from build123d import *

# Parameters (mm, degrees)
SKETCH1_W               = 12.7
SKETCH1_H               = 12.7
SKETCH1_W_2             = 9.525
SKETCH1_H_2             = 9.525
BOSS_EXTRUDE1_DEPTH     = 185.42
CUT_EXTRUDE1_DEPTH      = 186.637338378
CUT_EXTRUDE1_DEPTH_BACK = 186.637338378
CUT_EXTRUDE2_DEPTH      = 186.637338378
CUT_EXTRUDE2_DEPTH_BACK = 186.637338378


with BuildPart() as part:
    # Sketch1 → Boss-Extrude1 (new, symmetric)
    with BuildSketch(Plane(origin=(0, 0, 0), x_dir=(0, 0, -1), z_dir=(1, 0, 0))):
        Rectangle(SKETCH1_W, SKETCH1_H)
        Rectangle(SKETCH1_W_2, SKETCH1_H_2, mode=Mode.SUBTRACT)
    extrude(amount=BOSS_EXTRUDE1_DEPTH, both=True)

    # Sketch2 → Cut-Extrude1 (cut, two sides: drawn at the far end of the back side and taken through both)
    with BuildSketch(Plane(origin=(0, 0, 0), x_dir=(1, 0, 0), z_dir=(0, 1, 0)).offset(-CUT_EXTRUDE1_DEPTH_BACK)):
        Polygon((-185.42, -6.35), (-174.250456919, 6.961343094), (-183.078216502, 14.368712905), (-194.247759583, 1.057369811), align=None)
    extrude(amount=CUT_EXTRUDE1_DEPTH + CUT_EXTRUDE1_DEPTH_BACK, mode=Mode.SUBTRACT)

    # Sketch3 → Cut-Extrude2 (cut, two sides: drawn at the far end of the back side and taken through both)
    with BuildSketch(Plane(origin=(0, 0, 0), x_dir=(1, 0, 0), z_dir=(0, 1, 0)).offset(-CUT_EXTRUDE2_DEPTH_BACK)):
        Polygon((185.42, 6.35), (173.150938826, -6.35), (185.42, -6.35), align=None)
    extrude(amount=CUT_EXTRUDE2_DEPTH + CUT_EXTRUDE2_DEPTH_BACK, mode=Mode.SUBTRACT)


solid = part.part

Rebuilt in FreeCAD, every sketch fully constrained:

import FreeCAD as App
import Part
import Sketcher

V = App.Vector
Q = App.Units.Quantity


def add_polygon(sketch, points):
    """Adds a closed chain of lines whose ends are joined by coincident constraints."""
    first, n = sketch.GeometryCount, len(points)
    for a, b in zip(points, points[1:] + points[:1]):
        sketch.addGeometry(Part.LineSegment(App.Vector(*a, 0), App.Vector(*b, 0)), False)
    for i in range(n):
        sketch.addConstraint(Sketcher.Constraint("Coincident", first + i, 2, first + (i + 1) % n, 1))

doc = App.newDocument("Part")
body = doc.addObject("PartDesign::Body", "Body")

sketch1 = body.newObject("Sketcher::SketchObject", "Sketch")
sketch1.AttachmentSupport = (doc.getObject("YZ_Plane"), [""])
sketch1.MapMode = "FlatFace"
add_polygon(sketch1, [(6, 6), (-6, 6), (-6, -6), (6, -6)])
add_polygon(sketch1, [(-5, -5), (-5, 5), (5, 5), (5, -5)])
sketch1.addConstraint(Sketcher.Constraint("Horizontal", 0))
sketch1.addConstraint(Sketcher.Constraint("Vertical", 1))
sketch1.addConstraint(Sketcher.Constraint("Horizontal", 2))
sketch1.addConstraint(Sketcher.Constraint("Vertical", 3))
sketch1.addConstraint(Sketcher.Constraint("Vertical", 4))
sketch1.addConstraint(Sketcher.Constraint("Horizontal", 5))
sketch1.addConstraint(Sketcher.Constraint("Vertical", 6))
sketch1.addConstraint(Sketcher.Constraint("Horizontal", 7))
sketch1.addConstraint(Sketcher.Constraint("Symmetric", 0, 2, 2, 2, -1, 1))
sketch1.addConstraint(Sketcher.Constraint("Symmetric", 4, 2, 6, 2, -1, 1))
sketch1.addConstraint(Sketcher.Constraint("Equal", 2, 1))
sketch1.addConstraint(Sketcher.Constraint("Equal", 7, 4))
sketch1.addConstraint(Sketcher.Constraint("DistanceX", 0, 2, 0, 1, Q("0.5 in")))
sketch1.addConstraint(Sketcher.Constraint("DistanceX", 5, 1, 5, 2, Q("0.375 in")))
pad1 = body.newObject("PartDesign::Pad", "Pad")
pad1.Profile = sketch1
pad1.Length = Q("14.6 in")
pad1.Midplane = True

sketch2 = body.newObject("Sketcher::SketchObject", "Sketch001")
sketch2.AttachmentSupport = (doc.getObject("XZ_Plane"), [""])
sketch2.MapMode = "FlatFace"
add_polygon(sketch2, [(-185, 6), (-174, -7), (-183, -14), (-194, -1)])
sketch2.addConstraint(Sketcher.Constraint("Perpendicular", 0, 1))
sketch2.addConstraint(Sketcher.Constraint("Perpendicular", 1, 2))
sketch2.addConstraint(Sketcher.Constraint("Perpendicular", 2, 3))
sketch2.addConstraint(Sketcher.Constraint("Angle", 0, Q("-50 deg")))
sketch2.addConstraint(Sketcher.Constraint("DistanceX", 3, 2, -1, 1, Q("7.3 in")))
sketch2.addConstraint(Sketcher.Constraint("DistanceY", -1, 1, 3, 2, Q("0.25 in")))
sketch2.addConstraint(Sketcher.Constraint("Distance", 1, 11.523822))
sketch2.addConstraint(Sketcher.Constraint("Distance", 0, 17.376724))
pocket1 = body.newObject("PartDesign::Pocket", "Pocket")
pocket1.Profile = sketch2
pocket1.Type = "ThroughAll"
pocket1.Midplane = True

sketch3 = body.newObject("Sketcher::SketchObject", "Sketch002")
sketch3.AttachmentSupport = (doc.getObject("XZ_Plane"), [""])
sketch3.MapMode = "FlatFace"
add_polygon(sketch3, [(185, -6), (173, 6), (185, 6)])
sketch3.addConstraint(Sketcher.Constraint("Horizontal", 1))
sketch3.addConstraint(Sketcher.Constraint("Vertical", 2))
sketch3.addConstraint(Sketcher.Constraint("DistanceY", 2, 2, 2, 1, Q("0.5 in")))
sketch3.addConstraint(Sketcher.Constraint("DistanceX", -1, 1, 1, 2, Q("7.3 in")))
sketch3.addConstraint(Sketcher.Constraint("DistanceY", -1, 1, 0, 2, Q("0.25 in")))
sketch3.addConstraint(Sketcher.Constraint("DistanceX", 1, 1, 1, 2, 12.269061))
pocket2 = body.newObject("PartDesign::Pocket", "Pocket001")
pocket2.Profile = sketch3
pocket2.Type = "ThroughAll"
pocket2.Midplane = True

doc.recompute()
